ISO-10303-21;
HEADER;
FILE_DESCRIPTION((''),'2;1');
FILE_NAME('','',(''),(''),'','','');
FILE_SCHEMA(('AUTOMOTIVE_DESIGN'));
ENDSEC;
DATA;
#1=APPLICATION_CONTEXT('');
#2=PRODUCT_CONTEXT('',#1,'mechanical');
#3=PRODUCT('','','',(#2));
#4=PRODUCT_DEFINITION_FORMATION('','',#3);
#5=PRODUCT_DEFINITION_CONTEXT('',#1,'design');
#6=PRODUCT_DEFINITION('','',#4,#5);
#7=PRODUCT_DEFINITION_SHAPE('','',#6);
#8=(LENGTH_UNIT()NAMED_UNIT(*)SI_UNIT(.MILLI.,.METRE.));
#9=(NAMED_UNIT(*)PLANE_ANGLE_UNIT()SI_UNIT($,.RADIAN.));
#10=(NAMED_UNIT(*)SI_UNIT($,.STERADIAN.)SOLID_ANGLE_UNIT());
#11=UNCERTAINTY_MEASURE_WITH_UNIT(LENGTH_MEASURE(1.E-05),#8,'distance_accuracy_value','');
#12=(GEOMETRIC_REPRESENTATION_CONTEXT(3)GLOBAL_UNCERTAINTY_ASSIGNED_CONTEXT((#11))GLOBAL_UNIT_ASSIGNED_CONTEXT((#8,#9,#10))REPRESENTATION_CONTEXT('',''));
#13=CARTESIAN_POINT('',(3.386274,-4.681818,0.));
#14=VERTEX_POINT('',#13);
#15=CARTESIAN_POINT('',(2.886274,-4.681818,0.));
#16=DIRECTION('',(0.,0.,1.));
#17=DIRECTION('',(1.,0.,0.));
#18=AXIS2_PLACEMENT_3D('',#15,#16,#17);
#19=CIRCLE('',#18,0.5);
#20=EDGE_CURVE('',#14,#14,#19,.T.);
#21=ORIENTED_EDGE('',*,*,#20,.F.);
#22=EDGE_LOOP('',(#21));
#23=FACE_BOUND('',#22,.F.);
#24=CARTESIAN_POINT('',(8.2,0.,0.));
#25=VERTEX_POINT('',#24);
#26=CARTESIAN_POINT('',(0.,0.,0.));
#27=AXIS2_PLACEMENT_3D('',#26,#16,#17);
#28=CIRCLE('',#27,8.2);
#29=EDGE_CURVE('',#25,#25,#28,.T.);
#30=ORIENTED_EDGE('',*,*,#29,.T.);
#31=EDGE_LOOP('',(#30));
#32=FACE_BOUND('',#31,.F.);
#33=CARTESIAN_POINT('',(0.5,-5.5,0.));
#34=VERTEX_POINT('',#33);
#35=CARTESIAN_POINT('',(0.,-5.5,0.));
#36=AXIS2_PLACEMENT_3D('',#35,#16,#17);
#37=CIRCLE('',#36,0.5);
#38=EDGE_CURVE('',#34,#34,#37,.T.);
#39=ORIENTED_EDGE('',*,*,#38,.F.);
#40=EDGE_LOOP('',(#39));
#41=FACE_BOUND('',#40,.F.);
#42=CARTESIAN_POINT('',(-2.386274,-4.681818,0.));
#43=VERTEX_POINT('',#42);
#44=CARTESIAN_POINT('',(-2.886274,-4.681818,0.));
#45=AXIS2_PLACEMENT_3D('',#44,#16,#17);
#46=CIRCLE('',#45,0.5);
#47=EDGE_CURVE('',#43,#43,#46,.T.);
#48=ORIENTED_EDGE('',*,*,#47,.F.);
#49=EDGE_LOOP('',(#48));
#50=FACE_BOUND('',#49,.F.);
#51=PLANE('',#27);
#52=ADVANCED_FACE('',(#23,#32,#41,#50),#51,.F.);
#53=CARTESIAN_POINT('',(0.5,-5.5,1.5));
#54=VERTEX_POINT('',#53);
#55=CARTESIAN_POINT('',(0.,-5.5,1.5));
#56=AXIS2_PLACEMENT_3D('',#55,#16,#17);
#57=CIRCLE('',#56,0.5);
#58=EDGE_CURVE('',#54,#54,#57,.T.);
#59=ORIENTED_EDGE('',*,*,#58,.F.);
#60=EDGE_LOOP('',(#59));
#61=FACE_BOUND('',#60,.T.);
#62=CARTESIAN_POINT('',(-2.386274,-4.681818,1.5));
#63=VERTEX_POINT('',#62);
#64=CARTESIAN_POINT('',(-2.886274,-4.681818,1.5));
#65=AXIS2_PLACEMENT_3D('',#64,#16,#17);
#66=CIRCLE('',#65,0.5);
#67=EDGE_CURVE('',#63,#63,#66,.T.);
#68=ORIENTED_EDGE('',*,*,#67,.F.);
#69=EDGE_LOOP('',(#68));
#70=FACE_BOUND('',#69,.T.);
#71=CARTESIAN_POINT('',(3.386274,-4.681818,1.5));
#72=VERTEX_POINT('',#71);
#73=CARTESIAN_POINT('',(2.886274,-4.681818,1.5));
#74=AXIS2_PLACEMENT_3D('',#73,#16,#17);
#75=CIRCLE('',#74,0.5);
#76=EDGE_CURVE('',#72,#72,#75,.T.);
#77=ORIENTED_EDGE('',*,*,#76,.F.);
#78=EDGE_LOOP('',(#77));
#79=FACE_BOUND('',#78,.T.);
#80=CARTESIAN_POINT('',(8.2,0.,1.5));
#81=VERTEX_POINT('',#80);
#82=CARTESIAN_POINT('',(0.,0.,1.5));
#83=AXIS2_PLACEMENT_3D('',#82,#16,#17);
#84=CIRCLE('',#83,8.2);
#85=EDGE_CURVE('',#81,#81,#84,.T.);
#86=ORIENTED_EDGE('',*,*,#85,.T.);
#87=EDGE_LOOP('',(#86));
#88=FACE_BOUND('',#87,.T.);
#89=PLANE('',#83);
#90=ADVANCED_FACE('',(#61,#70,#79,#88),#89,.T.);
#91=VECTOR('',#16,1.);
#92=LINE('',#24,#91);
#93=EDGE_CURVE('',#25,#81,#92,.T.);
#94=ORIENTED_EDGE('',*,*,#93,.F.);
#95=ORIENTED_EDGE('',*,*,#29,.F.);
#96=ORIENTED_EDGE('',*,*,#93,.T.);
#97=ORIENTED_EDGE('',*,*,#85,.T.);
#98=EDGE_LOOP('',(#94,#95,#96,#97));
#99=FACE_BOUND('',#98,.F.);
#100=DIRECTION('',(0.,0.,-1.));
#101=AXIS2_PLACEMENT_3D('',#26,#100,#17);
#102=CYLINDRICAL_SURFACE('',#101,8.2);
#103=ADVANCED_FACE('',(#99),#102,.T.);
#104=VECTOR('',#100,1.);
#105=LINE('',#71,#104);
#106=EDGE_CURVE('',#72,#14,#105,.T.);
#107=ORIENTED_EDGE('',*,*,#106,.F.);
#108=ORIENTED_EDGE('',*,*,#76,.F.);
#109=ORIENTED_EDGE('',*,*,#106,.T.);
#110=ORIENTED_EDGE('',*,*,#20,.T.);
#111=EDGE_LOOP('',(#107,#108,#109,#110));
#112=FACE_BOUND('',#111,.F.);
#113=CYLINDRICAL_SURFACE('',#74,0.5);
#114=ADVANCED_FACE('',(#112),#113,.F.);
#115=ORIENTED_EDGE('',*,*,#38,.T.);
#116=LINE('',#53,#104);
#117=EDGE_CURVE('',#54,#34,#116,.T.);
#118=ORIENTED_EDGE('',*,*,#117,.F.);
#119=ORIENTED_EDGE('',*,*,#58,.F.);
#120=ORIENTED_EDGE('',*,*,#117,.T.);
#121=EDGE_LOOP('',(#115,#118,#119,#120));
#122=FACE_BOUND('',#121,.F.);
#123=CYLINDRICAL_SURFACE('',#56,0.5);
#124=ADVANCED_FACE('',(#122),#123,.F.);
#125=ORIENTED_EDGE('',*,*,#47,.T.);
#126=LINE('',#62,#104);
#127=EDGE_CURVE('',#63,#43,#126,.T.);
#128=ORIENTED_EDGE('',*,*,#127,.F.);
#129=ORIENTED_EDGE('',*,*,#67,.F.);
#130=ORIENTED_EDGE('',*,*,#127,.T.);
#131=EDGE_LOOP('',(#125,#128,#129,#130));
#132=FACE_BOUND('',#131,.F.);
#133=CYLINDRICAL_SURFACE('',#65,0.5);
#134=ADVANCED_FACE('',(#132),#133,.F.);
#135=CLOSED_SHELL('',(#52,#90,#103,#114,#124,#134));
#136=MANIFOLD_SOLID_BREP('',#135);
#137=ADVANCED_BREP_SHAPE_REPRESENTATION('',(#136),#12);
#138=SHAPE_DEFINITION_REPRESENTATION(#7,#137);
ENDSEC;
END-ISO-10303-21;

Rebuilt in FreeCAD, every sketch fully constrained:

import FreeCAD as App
import Part
import Sketcher
from FreeCAD import Vector

doc = App.newDocument("Part")
params = doc.addObject("Spreadsheet::Sheet", "Params")
for row, (alias, value) in enumerate([
    ("sketch1_diameter", "16.4 mm"),
    ("pad1_length", "1.5 mm"),
    ("sketch2_diameter", "1 mm"),
], start=1):
    params.set(f"A{row}", alias)
    params.set(f"B{row}", "=" + value)
    params.setAlias(f"B{row}", alias)

body = doc.addObject("PartDesign::Body", "Body")

# Sketch on XY plane
sketch1 = doc.addObject("Sketcher::SketchObject", "Sketch")
body.addObject(sketch1)
sketch1.AttachmentSupport = (doc.XY_Plane, [""])
sketch1.MapMode = "FlatFace"
sketch1.addGeometry(Part.Circle(Vector(0, 0, 0), Vector(0, 0, 1), 8), False)
sketch1.addConstraint([
    Sketcher.Constraint("Coincident", 0, 3, -1, 1),
    Sketcher.Constraint("Diameter", 0, 16.4),
])
sketch1.setExpression("Constraints[1]", "Params.sketch1_diameter")
pad1 = doc.addObject("PartDesign::Pad", "Pad")
body.addObject(pad1)
pad1.Profile = sketch1
pad1.setExpression("Length", "Params.pad1_length")

# Sketch on XY plane
sketch2 = doc.addObject("Sketcher::SketchObject", "Sketch001")
body.addObject(sketch2)
sketch2.AttachmentSupport = (doc.XY_Plane, [""])
sketch2.MapMode = "FlatFace"
sketch2.AttachmentOffset = App.Placement(Vector(0, 0, 1.5), App.Rotation())
sketch2.addGeometry([
    Part.Circle(Vector(0, -5.5, 0), Vector(0, 0, 1), 0.5),
    Part.Circle(Vector(2.9, -4.7, 0), Vector(0, 0, 1), 0.5),
    Part.Circle(Vector(-2.9, -4.7, 0), Vector(0, 0, 1), 0.5),
], False)
sketch2.addConstraint([
    Sketcher.Constraint("Equal", 0, 1),
    Sketcher.Constraint("Equal", 1, 2),
    Sketcher.Constraint("Symmetric", 1, 3, 2, 3, -2),
    Sketcher.Constraint("PointOnObject", 0, 3, -2),
    Sketcher.Constraint("Diameter", 0, 1.0),
    Sketcher.Constraint("DistanceY", 0, 3, -1, 1, 5.5),
    Sketcher.Constraint("DistanceX", -1, 1, 1, 3, 2.886274),
    Sketcher.Constraint("DistanceY", 1, 3, -1, 1, 4.681818),
])
sketch2.setExpression("Constraints[4]", "Params.sketch2_diameter")
pocket1 = doc.addObject("PartDesign::Pocket", "Pocket")
body.addObject(pocket1)
pocket1.Profile = sketch2
pocket1.Type = "ThroughAll"

doc.recompute()
